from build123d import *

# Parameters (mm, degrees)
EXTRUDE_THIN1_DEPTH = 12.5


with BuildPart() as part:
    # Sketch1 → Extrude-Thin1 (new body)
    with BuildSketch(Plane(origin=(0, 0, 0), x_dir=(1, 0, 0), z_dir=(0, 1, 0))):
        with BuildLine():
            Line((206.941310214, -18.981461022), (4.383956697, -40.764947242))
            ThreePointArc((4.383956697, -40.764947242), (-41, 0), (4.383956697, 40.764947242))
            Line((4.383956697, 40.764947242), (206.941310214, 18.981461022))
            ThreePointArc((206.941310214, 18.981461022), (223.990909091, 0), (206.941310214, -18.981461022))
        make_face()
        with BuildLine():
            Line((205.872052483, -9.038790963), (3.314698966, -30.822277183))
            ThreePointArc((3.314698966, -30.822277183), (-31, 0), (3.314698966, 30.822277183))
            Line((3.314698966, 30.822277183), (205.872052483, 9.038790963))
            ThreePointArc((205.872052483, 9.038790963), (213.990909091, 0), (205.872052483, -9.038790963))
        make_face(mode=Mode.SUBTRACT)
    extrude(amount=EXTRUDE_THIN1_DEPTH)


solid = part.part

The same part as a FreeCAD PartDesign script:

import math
import FreeCAD as App
import Part
import Sketcher

V = App.Vector
Q = App.Units.Quantity

doc = App.newDocument("Part")
body = doc.addObject("PartDesign::Body", "Body")

# Sketch on XZ plane
sketch1 = body.newObject("Sketcher::SketchObject", "Sketch")
sketch1.AttachmentSupport = (doc.getObject("XZ_Plane"), [""])
sketch1.MapMode = "FlatFace"
sketch1.addGeometry([
    Part.LineSegment(V(4.383957, 40.764947, 0), V(206.94131, 18.981461, 0)),  # 0
    Part.ArcOfCircle(Part.Circle(V(204.9, 0, 0), V(0, 0, 1), 19.090909), math.radians(-83.86187), math.radians(83.86187)),  # 1
    Part.LineSegment(V(206.94131, -18.981461, 0), V(4.383957, -40.764947, 0)),  # 2
    Part.ArcOfCircle(Part.Circle(V(0, 0, 0), V(0, 0, 1), 41), math.radians(83.86187), math.radians(276.13813)),  # 3
    Part.LineSegment(V(205.872052, 9.038791, 0), V(3.314699, 30.822277, 0)),  # 4
    Part.ArcOfCircle(Part.Circle(V(0, 0, 0), V(0, 0, 1), 31), math.radians(83.86187), math.radians(276.13813)),  # 5
    Part.LineSegment(V(3.314699, -30.822277, 0), V(205.872052, -9.038791, 0)),  # 6
    Part.ArcOfCircle(Part.Circle(V(204.9, 0, 0), V(0, 0, 1), 9.090909), math.radians(-83.86187), math.radians(83.86187)),  # 7
], False)
sketch1.addConstraint([
    Sketcher.Constraint("Tangent", 0, 2, 1, 2),
    Sketcher.Constraint("Tangent", 1, 1, 2, 1),
    Sketcher.Constraint("Tangent", 2, 2, 3, 2),
    Sketcher.Constraint("Tangent", 3, 1, 0, 1),
    Sketcher.Constraint("Tangent", 4, 2, 5, 1),
    Sketcher.Constraint("Tangent", 5, 2, 6, 1),
    Sketcher.Constraint("Tangent", 6, 2, 7, 1),
    Sketcher.Constraint("Tangent", 7, 2, 4, 1),
    Sketcher.Constraint("Coincident", 3, 3, -1, 1),
    Sketcher.Constraint("Coincident", 5, 3, -1, 1),
    Sketcher.Constraint("Coincident", 7, 3, 1, 3),
    Sketcher.Constraint("PointOnObject", 1, 3, -1),
    Sketcher.Constraint("Parallel", 0, 4),
    Sketcher.Constraint("Radius", 3, Q("41 mm")),
    Sketcher.Constraint("Radius", 5, Q("31 mm")),
    Sketcher.Constraint("DistanceX", -1, 1, 1, 3, Q("204.9 mm")),
    Sketcher.Constraint("Radius", 1, Q("19.090909 mm")),
])
pad1 = body.newObject("PartDesign::Pad", "Pad")
pad1.Profile = sketch1
pad1.Length = 12.5
pad1.Reversed = True

doc.recompute()
